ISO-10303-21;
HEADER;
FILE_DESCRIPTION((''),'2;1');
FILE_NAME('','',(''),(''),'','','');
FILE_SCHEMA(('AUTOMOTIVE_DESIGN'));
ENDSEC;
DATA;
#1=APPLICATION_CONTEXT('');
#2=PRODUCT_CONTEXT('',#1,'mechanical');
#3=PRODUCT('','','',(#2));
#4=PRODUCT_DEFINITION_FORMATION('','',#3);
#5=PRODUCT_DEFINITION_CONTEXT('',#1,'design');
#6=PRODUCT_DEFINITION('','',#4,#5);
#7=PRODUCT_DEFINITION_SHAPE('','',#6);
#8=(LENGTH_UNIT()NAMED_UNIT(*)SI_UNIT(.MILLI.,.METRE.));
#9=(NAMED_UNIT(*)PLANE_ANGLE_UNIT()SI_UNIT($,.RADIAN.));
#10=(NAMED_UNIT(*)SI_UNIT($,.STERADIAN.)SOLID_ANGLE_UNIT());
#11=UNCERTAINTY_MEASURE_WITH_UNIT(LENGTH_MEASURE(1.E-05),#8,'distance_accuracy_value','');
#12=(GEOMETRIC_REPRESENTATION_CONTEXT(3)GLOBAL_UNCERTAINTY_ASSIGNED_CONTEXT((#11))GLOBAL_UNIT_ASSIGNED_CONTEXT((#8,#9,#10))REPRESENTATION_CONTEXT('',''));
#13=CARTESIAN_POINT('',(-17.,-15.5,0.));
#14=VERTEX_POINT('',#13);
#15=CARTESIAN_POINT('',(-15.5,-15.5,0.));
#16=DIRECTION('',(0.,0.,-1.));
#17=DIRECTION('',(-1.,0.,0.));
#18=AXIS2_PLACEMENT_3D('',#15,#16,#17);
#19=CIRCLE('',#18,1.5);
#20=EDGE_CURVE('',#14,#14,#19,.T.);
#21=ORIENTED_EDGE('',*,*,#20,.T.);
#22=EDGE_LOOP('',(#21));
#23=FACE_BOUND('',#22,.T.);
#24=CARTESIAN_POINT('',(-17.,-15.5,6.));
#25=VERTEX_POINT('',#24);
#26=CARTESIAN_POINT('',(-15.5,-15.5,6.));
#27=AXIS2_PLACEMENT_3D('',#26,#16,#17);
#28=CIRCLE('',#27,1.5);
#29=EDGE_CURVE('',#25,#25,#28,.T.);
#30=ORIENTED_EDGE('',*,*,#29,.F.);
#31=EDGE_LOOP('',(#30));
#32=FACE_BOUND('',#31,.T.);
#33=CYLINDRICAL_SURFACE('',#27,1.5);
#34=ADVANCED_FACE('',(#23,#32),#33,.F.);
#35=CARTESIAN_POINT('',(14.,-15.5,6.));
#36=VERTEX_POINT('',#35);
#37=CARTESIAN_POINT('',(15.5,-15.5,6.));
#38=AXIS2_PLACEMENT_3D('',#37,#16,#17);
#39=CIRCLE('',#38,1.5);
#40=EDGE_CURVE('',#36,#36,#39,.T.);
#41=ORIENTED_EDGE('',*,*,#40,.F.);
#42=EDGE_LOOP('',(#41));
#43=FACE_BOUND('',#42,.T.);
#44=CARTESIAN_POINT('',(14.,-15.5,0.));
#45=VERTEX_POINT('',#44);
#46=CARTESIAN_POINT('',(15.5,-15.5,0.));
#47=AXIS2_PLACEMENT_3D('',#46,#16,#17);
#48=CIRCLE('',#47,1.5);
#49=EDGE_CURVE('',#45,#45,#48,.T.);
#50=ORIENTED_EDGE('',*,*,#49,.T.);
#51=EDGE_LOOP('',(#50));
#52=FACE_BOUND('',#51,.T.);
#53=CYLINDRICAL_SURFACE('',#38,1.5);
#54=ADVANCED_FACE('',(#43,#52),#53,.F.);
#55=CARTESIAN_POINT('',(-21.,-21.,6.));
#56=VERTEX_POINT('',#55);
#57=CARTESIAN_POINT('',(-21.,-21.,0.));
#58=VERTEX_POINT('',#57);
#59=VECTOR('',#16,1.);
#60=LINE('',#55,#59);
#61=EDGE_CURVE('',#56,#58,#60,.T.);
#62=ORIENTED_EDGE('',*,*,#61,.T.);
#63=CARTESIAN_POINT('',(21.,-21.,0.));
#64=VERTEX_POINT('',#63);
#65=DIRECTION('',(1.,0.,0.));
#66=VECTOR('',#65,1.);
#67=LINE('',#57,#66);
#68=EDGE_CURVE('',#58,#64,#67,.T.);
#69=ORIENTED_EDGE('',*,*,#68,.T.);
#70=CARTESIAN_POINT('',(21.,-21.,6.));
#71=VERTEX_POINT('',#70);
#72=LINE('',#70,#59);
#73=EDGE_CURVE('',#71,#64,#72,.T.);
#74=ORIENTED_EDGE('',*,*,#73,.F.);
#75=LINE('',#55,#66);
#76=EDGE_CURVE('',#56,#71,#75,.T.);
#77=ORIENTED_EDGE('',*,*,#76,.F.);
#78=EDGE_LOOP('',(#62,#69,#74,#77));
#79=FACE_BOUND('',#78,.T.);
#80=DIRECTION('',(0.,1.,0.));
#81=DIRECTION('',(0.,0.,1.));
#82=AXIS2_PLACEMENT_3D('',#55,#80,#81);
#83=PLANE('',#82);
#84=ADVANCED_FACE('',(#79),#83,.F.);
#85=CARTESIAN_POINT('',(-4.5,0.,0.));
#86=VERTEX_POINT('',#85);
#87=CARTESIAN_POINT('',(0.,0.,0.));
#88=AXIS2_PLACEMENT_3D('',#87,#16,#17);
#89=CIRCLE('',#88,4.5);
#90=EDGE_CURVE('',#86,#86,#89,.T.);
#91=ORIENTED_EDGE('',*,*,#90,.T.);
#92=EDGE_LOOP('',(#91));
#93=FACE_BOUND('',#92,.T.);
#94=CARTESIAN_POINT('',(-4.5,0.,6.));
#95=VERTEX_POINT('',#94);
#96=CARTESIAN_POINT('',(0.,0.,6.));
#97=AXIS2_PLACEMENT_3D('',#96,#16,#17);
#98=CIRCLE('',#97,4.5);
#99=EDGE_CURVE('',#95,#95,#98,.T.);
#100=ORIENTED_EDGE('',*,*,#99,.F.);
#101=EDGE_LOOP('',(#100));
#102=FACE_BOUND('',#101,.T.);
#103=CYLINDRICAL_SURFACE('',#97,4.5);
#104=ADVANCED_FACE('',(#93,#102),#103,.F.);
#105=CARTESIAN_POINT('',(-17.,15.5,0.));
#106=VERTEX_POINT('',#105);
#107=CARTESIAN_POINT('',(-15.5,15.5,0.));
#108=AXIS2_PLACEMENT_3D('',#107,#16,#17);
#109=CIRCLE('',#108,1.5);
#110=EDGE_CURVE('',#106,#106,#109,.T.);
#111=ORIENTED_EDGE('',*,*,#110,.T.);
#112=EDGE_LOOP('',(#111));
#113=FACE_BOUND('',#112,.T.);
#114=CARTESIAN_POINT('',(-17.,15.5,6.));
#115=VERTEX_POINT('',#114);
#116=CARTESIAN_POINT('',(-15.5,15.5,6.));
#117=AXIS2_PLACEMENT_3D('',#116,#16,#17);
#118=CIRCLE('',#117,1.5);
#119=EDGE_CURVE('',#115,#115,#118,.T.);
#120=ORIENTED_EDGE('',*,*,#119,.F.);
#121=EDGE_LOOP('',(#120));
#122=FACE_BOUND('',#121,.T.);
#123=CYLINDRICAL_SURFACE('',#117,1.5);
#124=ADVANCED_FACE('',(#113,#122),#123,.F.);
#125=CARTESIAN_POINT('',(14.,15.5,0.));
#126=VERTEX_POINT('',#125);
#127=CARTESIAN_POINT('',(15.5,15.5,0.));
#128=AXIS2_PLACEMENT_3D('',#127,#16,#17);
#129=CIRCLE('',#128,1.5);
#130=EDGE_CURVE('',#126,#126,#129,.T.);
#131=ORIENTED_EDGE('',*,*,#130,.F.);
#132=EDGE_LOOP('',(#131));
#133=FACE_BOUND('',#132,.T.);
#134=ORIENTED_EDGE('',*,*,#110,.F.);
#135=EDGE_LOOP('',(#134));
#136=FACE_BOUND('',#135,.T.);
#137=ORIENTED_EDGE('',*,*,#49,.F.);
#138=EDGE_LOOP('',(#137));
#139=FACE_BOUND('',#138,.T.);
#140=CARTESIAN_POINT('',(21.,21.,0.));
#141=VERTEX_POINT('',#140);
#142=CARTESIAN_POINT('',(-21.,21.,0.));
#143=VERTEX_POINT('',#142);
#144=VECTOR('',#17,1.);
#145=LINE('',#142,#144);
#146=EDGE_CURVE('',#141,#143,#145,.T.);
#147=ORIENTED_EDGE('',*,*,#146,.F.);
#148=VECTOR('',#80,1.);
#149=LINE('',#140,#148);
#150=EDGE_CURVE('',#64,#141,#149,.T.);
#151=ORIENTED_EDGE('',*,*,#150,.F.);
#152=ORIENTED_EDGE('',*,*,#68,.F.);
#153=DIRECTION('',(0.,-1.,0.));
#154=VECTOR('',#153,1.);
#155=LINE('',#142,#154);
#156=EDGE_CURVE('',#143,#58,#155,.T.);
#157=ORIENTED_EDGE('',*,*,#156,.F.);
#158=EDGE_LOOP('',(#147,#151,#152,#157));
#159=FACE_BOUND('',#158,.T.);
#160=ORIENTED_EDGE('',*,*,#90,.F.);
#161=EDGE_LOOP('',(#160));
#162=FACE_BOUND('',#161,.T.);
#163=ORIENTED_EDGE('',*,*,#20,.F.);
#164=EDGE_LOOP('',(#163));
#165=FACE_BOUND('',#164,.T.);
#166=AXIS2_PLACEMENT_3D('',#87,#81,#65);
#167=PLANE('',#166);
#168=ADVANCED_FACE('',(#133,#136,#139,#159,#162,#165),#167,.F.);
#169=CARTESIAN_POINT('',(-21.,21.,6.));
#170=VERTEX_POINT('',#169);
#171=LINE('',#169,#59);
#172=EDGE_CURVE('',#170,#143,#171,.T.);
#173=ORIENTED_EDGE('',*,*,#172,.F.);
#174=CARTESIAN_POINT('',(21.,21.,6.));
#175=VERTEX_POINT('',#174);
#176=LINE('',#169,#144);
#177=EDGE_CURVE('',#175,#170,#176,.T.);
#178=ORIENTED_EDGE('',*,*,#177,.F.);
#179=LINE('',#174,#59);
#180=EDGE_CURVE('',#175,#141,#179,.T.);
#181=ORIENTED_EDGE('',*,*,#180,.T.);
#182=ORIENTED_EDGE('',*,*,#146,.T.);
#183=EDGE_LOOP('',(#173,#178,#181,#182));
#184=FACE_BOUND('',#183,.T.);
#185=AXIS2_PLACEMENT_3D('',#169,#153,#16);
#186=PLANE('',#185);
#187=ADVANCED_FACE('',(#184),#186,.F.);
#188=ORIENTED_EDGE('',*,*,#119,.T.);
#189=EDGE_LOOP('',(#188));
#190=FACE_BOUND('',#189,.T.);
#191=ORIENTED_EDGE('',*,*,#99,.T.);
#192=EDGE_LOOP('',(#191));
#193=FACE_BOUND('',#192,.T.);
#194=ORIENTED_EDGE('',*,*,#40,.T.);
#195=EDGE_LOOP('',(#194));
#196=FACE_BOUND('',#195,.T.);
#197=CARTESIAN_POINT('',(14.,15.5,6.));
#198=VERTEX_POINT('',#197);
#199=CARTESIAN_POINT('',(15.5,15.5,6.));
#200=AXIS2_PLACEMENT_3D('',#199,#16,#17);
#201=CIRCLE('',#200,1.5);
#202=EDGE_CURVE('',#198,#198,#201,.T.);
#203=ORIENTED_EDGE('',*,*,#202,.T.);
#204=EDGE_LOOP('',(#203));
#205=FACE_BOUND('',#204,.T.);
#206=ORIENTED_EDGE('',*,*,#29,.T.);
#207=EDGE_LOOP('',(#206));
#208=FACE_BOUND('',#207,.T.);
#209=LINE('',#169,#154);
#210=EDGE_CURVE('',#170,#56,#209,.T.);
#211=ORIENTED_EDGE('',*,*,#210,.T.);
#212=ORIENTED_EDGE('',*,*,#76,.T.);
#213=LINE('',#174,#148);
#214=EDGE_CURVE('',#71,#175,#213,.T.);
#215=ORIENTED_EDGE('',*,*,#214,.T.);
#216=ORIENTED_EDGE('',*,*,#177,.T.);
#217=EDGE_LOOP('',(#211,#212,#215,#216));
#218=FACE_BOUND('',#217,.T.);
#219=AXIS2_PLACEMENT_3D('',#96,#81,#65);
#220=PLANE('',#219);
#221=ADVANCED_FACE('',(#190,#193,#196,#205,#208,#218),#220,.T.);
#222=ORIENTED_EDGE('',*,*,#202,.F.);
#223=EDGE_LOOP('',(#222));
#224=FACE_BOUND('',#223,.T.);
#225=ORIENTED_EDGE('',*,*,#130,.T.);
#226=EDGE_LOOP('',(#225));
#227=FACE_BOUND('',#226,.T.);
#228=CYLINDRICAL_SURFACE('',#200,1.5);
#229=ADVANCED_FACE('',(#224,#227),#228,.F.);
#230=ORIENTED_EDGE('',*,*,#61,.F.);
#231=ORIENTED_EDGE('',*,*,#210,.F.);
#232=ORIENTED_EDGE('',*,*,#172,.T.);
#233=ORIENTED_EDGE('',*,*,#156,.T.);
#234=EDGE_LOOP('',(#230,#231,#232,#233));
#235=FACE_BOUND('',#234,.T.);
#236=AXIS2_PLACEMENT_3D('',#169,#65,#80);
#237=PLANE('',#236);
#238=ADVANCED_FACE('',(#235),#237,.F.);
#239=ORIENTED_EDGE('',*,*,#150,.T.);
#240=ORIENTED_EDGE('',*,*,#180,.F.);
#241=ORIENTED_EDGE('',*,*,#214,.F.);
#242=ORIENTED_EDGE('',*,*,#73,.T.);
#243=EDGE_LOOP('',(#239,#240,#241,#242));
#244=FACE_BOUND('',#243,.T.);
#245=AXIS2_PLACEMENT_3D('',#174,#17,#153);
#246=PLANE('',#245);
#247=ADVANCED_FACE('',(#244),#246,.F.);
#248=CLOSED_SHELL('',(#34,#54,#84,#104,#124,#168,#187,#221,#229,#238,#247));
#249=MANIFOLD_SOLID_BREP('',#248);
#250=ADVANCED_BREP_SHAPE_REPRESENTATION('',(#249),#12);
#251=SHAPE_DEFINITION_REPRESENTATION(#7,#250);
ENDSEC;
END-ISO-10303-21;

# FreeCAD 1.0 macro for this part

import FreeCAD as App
import Part
import Sketcher
Q = App.Units.Quantity

doc = App.newDocument("Part")
body = doc.addObject("PartDesign::Body", "Body")

# Sketch on XY plane
sketch1 = doc.addObject("Sketcher::SketchObject", "Sketch")
body.addObject(sketch1)
sketch1.AttachmentSupport = (doc.XY_Plane, [""])
sketch1.MapMode = "FlatFace"
sketch1.addGeometry([
    Part.LineSegment(App.Vector(-21, 21, 0), App.Vector(-21, -21, 0)),
    Part.LineSegment(App.Vector(-21, -21, 0), App.Vector(21, -21, 0)),
    Part.LineSegment(App.Vector(21, -21, 0), App.Vector(21, 21, 0)),
    Part.LineSegment(App.Vector(21, 21, 0), App.Vector(-21, 21, 0)),
], False)
sketch1.addConstraint([
    Sketcher.Constraint("Coincident", 0, 2, 1, 1),
    Sketcher.Constraint("Coincident", 1, 2, 2, 1),
    Sketcher.Constraint("Coincident", 2, 2, 3, 1),
    Sketcher.Constraint("Coincident", 3, 2, 0, 1),
    Sketcher.Constraint("Vertical", 0),
    Sketcher.Constraint("Horizontal", 1),
    Sketcher.Constraint("Vertical", 2),
    Sketcher.Constraint("Horizontal", 3),
    Sketcher.Constraint("Symmetric", 0, 2, 2, 2, -1, 1),
    Sketcher.Constraint("Equal", 3, 0),
    Sketcher.Constraint("DistanceX", 1, 1, 1, 2, Q("42 mm")),
])
pad1 = doc.addObject("PartDesign::Pad", "Pad")
body.addObject(pad1)
pad1.Profile = sketch1
pad1.Length = 6

# Sketch on XY plane
sketch2 = doc.addObject("Sketcher::SketchObject", "Sketch001")
body.addObject(sketch2)
sketch2.AttachmentSupport = (doc.XY_Plane, [""])
sketch2.MapMode = "FlatFace"
sketch2.addGeometry([
    Part.Circle(App.Vector(15.5, 15.5, 0), App.Vector(0, 0, 1), 1.5),
    Part.Circle(App.Vector(-15.5, 15.5, 0), App.Vector(0, 0, 1), 1.5),
    Part.Circle(App.Vector(-15.5, -15.5, 0), App.Vector(0, 0, 1), 1.5),
    Part.Circle(App.Vector(15.5, -15.5, 0), App.Vector(0, 0, 1), 1.5),
], False)
sketch2.addConstraint([
    Sketcher.Constraint("Equal", 0, 1),
    Sketcher.Constraint("Equal", 1, 2),
    Sketcher.Constraint("Equal", 2, 3),
    Sketcher.Constraint("Symmetric", 0, 3, 2, 3, -1, 1),
    Sketcher.Constraint("Symmetric", 1, 3, 3, 3, -1, 1),
    Sketcher.Constraint("Symmetric", 0, 3, 1, 3, -2),
    Sketcher.Constraint("Diameter", 0, Q("3 mm")),
    Sketcher.Constraint("DistanceX", 1, 3, 0, 3, Q("31 mm")),
    Sketcher.Constraint("DistanceY", 2, 3, 1, 3, Q("31 mm")),
])
pocket1 = doc.addObject("PartDesign::Pocket", "Pocket")
body.addObject(pocket1)
pocket1.Profile = sketch2
pocket1.Type = "ThroughAll"
pocket1.Reversed = True

# Sketch on XY plane
sketch3 = doc.addObject("Sketcher::SketchObject", "Sketch002")
body.addObject(sketch3)
sketch3.AttachmentSupport = (doc.XY_Plane, [""])
sketch3.MapMode = "FlatFace"
sketch3.addGeometry(Part.Circle(App.Vector(0, 0, 0), App.Vector(0, 0, 1), 4.5), False)
sketch3.addConstraint([
    Sketcher.Constraint("Coincident", 0, 3, -1, 1),
    Sketcher.Constraint("Diameter", 0, Q("9 mm")),
])
pocket2 = doc.addObject("PartDesign::Pocket", "Pocket001")
body.addObject(pocket2)
pocket2.Profile = sketch3
pocket2.Type = "ThroughAll"
pocket2.Reversed = True

doc.recompute()
